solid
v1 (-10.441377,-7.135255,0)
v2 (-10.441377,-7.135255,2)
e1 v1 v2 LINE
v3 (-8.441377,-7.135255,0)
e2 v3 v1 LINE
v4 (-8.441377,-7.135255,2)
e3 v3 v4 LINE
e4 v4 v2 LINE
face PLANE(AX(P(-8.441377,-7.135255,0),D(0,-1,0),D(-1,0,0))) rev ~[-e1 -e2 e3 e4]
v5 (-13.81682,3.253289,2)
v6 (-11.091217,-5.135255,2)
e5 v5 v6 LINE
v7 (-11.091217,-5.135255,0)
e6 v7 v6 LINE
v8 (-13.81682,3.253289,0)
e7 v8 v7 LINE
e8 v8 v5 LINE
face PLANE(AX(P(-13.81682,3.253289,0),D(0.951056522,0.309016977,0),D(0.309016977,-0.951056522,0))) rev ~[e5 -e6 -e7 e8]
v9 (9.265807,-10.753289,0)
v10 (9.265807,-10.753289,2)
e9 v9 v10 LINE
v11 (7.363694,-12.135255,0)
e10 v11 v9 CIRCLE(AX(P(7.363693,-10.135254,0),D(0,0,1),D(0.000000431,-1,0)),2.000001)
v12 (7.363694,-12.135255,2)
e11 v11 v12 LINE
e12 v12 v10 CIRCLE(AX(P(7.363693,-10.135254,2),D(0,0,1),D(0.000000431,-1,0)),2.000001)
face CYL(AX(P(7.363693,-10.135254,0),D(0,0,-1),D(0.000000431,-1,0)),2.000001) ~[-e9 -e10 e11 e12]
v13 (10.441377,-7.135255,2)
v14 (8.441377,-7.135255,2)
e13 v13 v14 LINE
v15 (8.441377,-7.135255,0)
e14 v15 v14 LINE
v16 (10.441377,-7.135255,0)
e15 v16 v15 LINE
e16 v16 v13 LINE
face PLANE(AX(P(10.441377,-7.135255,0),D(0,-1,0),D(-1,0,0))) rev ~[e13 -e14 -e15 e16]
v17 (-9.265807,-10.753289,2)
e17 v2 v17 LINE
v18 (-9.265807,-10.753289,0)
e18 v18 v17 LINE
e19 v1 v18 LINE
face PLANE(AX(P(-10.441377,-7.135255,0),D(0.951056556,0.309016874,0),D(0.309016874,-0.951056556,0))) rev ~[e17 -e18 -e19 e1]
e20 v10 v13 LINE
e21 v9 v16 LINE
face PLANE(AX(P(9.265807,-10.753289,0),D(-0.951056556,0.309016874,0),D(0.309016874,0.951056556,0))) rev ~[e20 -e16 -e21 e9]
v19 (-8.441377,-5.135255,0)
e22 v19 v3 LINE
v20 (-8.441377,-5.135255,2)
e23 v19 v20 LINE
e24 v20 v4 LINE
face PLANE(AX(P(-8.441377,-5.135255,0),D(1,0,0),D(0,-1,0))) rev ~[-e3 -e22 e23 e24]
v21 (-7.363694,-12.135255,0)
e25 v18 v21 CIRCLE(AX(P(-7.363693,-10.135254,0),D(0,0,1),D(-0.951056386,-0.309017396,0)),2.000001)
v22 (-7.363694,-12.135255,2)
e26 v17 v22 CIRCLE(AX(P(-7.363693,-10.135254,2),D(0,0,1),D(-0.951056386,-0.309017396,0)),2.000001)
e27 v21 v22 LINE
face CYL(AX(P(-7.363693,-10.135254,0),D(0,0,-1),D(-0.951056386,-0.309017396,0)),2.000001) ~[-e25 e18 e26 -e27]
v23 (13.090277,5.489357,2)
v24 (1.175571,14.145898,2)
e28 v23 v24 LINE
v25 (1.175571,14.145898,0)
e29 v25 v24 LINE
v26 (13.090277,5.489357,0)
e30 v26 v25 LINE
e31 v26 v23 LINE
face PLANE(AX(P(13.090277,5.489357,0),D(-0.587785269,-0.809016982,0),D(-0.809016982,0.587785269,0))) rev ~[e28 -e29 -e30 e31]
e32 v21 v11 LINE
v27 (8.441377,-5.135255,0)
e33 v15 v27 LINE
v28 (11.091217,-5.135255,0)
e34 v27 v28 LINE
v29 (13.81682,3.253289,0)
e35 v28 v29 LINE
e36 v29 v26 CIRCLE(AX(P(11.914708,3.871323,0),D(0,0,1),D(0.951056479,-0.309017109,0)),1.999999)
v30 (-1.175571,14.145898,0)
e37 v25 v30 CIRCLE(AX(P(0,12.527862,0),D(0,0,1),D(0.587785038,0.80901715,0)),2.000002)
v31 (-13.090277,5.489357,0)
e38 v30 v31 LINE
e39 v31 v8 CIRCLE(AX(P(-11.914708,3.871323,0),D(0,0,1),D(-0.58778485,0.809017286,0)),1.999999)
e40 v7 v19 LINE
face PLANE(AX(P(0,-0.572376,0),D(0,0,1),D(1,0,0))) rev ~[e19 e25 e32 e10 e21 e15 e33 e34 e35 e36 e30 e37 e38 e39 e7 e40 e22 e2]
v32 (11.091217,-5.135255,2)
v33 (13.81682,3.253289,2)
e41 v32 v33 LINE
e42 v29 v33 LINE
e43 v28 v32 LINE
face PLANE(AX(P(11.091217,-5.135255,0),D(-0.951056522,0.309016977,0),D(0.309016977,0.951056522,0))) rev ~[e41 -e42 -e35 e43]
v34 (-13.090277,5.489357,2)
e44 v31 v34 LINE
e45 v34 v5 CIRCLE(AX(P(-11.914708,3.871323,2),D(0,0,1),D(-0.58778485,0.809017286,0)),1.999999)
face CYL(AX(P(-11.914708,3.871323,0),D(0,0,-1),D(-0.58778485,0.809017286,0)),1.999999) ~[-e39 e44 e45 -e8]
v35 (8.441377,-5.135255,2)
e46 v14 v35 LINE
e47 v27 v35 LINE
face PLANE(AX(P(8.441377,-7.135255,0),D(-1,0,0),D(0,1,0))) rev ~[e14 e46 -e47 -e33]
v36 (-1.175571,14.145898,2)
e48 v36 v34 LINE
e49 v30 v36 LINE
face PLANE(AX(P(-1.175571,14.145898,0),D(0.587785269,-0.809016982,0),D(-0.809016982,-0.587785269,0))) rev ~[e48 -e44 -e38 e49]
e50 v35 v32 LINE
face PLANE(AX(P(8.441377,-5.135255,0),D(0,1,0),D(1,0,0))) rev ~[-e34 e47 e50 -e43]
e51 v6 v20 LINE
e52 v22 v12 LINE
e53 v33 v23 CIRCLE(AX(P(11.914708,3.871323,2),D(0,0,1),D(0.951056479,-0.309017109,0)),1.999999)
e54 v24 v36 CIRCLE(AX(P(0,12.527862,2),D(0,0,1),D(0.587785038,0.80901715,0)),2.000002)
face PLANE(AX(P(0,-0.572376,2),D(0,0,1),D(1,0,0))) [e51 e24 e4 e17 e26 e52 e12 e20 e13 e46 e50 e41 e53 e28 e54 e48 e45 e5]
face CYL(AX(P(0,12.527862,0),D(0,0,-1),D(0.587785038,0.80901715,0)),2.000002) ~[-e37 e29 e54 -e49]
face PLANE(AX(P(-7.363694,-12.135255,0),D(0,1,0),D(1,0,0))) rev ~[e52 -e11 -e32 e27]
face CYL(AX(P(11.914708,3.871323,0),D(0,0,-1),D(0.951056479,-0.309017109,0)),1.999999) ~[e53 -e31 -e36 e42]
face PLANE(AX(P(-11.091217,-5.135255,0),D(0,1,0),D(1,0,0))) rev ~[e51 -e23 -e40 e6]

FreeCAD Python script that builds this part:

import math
import FreeCAD as App
import Part
import Sketcher
from FreeCAD import Vector
Q = App.Units.Quantity

doc = App.newDocument("Part")
body = doc.addObject("PartDesign::Body", "Body")

# Sketch on XY plane
sketch1 = body.newObject("Sketcher::SketchObject", "Sketch")
sketch1.AttachmentSupport = (doc.getObject("XY_Plane"), [""])
sketch1.MapMode = "FlatFace"
sketch1.addGeometry([
    Part.LineSegment(Vector(13.090277, 5.489357, 0), Vector(1.175571, 14.145898, 0)),  # 0
    Part.ArcOfCircle(Part.Circle(Vector(0, 12.527862, 0), Vector(0, 0, 1), 2.000002), math.radians(54.000015), math.radians(125.999985)),  # 1
    Part.LineSegment(Vector(-1.175571, 14.145898, 0), Vector(-13.090277, 5.489357, 0)),  # 2
    Part.ArcOfCircle(Part.Circle(Vector(-11.914708, 3.871323, 0), Vector(0, 0, 1), 1.999999), math.radians(125.999972), math.radians(198.000007)),  # 3
    Part.LineSegment(Vector(-13.81682, 3.253289, 0), Vector(-11.091217, -5.135255, 0)),  # 4
    Part.LineSegment(Vector(-11.091217, -5.135255, 0), Vector(-8.441377, -5.135255, 0)),  # 5
    Part.LineSegment(Vector(-8.441377, -5.135255, 0), Vector(-8.441377, -7.135255, 0)),  # 6
    Part.LineSegment(Vector(-8.441377, -7.135255, 0), Vector(-10.441377, -7.135255, 0)),  # 7
    Part.LineSegment(Vector(-10.441377, -7.135255, 0), Vector(-9.265807, -10.753289, 0)),  # 8
    Part.ArcOfCircle(Part.Circle(Vector(-7.363693, -10.135254, 0), Vector(0, 0, 1), 2.000001), math.radians(-161.999976), math.radians(-90.000025)),  # 9
    Part.LineSegment(Vector(-7.363694, -12.135255, 0), Vector(7.363694, -12.135255, 0)),  # 10
    Part.ArcOfCircle(Part.Circle(Vector(7.363693, -10.135254, 0), Vector(0, 0, 1), 2.000001), math.radians(-89.999975), math.radians(-18.000024)),  # 11
    Part.LineSegment(Vector(9.265807, -10.753289, 0), Vector(10.441377, -7.135255, 0)),  # 12
    Part.LineSegment(Vector(10.441377, -7.135255, 0), Vector(8.441377, -7.135255, 0)),  # 13
    Part.LineSegment(Vector(8.441377, -7.135255, 0), Vector(8.441377, -5.135255, 0)),  # 14
    Part.LineSegment(Vector(8.441377, -5.135255, 0), Vector(11.091217, -5.135255, 0)),  # 15
    Part.LineSegment(Vector(11.091217, -5.135255, 0), Vector(13.81682, 3.253289, 0)),  # 16
    Part.ArcOfCircle(Part.Circle(Vector(11.914708, 3.871323, 0), Vector(0, 0, 1), 1.999999), math.radians(-18.000007), math.radians(54.000028)),  # 17
], False)
sketch1.addConstraint([
    Sketcher.Constraint("Tangent", 0, 2, 1, 1),
    Sketcher.Constraint("Tangent", 1, 2, 2, 1),
    Sketcher.Constraint("Tangent", 2, 2, 3, 1),
    Sketcher.Constraint("Tangent", 3, 2, 4, 1),
    Sketcher.Constraint("Coincident", 4, 2, 5, 1),
    Sketcher.Constraint("Coincident", 5, 2, 6, 1),
    Sketcher.Constraint("Coincident", 6, 2, 7, 1),
    Sketcher.Constraint("Coincident", 7, 2, 8, 1),
    Sketcher.Constraint("Tangent", 8, 2, 9, 1),
    Sketcher.Constraint("Tangent", 9, 2, 10, 1),
    Sketcher.Constraint("Tangent", 10, 2, 11, 1),
    Sketcher.Constraint("Tangent", 11, 2, 12, 1),
    Sketcher.Constraint("Coincident", 12, 2, 13, 1),
    Sketcher.Constraint("Coincident", 13, 2, 14, 1),
    Sketcher.Constraint("Coincident", 14, 2, 15, 1),
    Sketcher.Constraint("Coincident", 15, 2, 16, 1),
    Sketcher.Constraint("Tangent", 16, 2, 17, 1),
    Sketcher.Constraint("Tangent", 17, 2, 0, 1),
    Sketcher.Constraint("Horizontal", 5),
    Sketcher.Constraint("Vertical", 6),
    Sketcher.Constraint("Horizontal", 7),
    Sketcher.Constraint("Horizontal", 10),
    Sketcher.Constraint("Horizontal", 13),
    Sketcher.Constraint("Vertical", 14),
    Sketcher.Constraint("Horizontal", 15),
    Sketcher.Constraint("Equal", 3, 9),
    Sketcher.Constraint("Equal", 9, 11),
    Sketcher.Constraint("Equal", 11, 17),
    Sketcher.Constraint("Symmetric", 3, 3, 17, 3, -2),
    Sketcher.Constraint("Symmetric", 8, 2, 11, 2, -2),
    Sketcher.Constraint("Symmetric", 6, 2, 13, 2, -2),
    Sketcher.Constraint("Symmetric", 4, 2, 15, 2, -2),
    Sketcher.Constraint("PointOnObject", 1, 3, -2),
    Sketcher.Constraint("Parallel", 4, 8),
    Sketcher.Constraint("Equal", 13, 6),
    Sketcher.Constraint("Radius", 1, Q("2.000002 mm")),
    Sketcher.Constraint("Radius", 3, Q("1.999999 mm")),
    Sketcher.Constraint("DistanceX", 7, 2, 7, 1, Q("2 mm")),
    Sketcher.Constraint("Angle", 0, Q("143.999999 deg")),
    Sketcher.Constraint("Angle", 4, Q("-72.000001 deg")),
    Sketcher.Constraint("DistanceY", 9, 3, 4, 2, Q("4.999999 mm")),
    Sketcher.Constraint("DistanceX", 5, 1, 5, 2, Q("2.64984 mm")),
    Sketcher.Constraint("DistanceY", -1, 1, 0, 2, Q("14.145898 mm")),
    Sketcher.Constraint("DistanceX", 3, 3, 11, 3, Q("19.278401 mm")),
    Sketcher.Constraint("DistanceX", 2, 2, 5, 2, Q("4.6489 mm")),
])
pad1 = body.newObject("PartDesign::Pad", "Pad")
pad1.Profile = sketch1
pad1.Length = 2

doc.recompute()
